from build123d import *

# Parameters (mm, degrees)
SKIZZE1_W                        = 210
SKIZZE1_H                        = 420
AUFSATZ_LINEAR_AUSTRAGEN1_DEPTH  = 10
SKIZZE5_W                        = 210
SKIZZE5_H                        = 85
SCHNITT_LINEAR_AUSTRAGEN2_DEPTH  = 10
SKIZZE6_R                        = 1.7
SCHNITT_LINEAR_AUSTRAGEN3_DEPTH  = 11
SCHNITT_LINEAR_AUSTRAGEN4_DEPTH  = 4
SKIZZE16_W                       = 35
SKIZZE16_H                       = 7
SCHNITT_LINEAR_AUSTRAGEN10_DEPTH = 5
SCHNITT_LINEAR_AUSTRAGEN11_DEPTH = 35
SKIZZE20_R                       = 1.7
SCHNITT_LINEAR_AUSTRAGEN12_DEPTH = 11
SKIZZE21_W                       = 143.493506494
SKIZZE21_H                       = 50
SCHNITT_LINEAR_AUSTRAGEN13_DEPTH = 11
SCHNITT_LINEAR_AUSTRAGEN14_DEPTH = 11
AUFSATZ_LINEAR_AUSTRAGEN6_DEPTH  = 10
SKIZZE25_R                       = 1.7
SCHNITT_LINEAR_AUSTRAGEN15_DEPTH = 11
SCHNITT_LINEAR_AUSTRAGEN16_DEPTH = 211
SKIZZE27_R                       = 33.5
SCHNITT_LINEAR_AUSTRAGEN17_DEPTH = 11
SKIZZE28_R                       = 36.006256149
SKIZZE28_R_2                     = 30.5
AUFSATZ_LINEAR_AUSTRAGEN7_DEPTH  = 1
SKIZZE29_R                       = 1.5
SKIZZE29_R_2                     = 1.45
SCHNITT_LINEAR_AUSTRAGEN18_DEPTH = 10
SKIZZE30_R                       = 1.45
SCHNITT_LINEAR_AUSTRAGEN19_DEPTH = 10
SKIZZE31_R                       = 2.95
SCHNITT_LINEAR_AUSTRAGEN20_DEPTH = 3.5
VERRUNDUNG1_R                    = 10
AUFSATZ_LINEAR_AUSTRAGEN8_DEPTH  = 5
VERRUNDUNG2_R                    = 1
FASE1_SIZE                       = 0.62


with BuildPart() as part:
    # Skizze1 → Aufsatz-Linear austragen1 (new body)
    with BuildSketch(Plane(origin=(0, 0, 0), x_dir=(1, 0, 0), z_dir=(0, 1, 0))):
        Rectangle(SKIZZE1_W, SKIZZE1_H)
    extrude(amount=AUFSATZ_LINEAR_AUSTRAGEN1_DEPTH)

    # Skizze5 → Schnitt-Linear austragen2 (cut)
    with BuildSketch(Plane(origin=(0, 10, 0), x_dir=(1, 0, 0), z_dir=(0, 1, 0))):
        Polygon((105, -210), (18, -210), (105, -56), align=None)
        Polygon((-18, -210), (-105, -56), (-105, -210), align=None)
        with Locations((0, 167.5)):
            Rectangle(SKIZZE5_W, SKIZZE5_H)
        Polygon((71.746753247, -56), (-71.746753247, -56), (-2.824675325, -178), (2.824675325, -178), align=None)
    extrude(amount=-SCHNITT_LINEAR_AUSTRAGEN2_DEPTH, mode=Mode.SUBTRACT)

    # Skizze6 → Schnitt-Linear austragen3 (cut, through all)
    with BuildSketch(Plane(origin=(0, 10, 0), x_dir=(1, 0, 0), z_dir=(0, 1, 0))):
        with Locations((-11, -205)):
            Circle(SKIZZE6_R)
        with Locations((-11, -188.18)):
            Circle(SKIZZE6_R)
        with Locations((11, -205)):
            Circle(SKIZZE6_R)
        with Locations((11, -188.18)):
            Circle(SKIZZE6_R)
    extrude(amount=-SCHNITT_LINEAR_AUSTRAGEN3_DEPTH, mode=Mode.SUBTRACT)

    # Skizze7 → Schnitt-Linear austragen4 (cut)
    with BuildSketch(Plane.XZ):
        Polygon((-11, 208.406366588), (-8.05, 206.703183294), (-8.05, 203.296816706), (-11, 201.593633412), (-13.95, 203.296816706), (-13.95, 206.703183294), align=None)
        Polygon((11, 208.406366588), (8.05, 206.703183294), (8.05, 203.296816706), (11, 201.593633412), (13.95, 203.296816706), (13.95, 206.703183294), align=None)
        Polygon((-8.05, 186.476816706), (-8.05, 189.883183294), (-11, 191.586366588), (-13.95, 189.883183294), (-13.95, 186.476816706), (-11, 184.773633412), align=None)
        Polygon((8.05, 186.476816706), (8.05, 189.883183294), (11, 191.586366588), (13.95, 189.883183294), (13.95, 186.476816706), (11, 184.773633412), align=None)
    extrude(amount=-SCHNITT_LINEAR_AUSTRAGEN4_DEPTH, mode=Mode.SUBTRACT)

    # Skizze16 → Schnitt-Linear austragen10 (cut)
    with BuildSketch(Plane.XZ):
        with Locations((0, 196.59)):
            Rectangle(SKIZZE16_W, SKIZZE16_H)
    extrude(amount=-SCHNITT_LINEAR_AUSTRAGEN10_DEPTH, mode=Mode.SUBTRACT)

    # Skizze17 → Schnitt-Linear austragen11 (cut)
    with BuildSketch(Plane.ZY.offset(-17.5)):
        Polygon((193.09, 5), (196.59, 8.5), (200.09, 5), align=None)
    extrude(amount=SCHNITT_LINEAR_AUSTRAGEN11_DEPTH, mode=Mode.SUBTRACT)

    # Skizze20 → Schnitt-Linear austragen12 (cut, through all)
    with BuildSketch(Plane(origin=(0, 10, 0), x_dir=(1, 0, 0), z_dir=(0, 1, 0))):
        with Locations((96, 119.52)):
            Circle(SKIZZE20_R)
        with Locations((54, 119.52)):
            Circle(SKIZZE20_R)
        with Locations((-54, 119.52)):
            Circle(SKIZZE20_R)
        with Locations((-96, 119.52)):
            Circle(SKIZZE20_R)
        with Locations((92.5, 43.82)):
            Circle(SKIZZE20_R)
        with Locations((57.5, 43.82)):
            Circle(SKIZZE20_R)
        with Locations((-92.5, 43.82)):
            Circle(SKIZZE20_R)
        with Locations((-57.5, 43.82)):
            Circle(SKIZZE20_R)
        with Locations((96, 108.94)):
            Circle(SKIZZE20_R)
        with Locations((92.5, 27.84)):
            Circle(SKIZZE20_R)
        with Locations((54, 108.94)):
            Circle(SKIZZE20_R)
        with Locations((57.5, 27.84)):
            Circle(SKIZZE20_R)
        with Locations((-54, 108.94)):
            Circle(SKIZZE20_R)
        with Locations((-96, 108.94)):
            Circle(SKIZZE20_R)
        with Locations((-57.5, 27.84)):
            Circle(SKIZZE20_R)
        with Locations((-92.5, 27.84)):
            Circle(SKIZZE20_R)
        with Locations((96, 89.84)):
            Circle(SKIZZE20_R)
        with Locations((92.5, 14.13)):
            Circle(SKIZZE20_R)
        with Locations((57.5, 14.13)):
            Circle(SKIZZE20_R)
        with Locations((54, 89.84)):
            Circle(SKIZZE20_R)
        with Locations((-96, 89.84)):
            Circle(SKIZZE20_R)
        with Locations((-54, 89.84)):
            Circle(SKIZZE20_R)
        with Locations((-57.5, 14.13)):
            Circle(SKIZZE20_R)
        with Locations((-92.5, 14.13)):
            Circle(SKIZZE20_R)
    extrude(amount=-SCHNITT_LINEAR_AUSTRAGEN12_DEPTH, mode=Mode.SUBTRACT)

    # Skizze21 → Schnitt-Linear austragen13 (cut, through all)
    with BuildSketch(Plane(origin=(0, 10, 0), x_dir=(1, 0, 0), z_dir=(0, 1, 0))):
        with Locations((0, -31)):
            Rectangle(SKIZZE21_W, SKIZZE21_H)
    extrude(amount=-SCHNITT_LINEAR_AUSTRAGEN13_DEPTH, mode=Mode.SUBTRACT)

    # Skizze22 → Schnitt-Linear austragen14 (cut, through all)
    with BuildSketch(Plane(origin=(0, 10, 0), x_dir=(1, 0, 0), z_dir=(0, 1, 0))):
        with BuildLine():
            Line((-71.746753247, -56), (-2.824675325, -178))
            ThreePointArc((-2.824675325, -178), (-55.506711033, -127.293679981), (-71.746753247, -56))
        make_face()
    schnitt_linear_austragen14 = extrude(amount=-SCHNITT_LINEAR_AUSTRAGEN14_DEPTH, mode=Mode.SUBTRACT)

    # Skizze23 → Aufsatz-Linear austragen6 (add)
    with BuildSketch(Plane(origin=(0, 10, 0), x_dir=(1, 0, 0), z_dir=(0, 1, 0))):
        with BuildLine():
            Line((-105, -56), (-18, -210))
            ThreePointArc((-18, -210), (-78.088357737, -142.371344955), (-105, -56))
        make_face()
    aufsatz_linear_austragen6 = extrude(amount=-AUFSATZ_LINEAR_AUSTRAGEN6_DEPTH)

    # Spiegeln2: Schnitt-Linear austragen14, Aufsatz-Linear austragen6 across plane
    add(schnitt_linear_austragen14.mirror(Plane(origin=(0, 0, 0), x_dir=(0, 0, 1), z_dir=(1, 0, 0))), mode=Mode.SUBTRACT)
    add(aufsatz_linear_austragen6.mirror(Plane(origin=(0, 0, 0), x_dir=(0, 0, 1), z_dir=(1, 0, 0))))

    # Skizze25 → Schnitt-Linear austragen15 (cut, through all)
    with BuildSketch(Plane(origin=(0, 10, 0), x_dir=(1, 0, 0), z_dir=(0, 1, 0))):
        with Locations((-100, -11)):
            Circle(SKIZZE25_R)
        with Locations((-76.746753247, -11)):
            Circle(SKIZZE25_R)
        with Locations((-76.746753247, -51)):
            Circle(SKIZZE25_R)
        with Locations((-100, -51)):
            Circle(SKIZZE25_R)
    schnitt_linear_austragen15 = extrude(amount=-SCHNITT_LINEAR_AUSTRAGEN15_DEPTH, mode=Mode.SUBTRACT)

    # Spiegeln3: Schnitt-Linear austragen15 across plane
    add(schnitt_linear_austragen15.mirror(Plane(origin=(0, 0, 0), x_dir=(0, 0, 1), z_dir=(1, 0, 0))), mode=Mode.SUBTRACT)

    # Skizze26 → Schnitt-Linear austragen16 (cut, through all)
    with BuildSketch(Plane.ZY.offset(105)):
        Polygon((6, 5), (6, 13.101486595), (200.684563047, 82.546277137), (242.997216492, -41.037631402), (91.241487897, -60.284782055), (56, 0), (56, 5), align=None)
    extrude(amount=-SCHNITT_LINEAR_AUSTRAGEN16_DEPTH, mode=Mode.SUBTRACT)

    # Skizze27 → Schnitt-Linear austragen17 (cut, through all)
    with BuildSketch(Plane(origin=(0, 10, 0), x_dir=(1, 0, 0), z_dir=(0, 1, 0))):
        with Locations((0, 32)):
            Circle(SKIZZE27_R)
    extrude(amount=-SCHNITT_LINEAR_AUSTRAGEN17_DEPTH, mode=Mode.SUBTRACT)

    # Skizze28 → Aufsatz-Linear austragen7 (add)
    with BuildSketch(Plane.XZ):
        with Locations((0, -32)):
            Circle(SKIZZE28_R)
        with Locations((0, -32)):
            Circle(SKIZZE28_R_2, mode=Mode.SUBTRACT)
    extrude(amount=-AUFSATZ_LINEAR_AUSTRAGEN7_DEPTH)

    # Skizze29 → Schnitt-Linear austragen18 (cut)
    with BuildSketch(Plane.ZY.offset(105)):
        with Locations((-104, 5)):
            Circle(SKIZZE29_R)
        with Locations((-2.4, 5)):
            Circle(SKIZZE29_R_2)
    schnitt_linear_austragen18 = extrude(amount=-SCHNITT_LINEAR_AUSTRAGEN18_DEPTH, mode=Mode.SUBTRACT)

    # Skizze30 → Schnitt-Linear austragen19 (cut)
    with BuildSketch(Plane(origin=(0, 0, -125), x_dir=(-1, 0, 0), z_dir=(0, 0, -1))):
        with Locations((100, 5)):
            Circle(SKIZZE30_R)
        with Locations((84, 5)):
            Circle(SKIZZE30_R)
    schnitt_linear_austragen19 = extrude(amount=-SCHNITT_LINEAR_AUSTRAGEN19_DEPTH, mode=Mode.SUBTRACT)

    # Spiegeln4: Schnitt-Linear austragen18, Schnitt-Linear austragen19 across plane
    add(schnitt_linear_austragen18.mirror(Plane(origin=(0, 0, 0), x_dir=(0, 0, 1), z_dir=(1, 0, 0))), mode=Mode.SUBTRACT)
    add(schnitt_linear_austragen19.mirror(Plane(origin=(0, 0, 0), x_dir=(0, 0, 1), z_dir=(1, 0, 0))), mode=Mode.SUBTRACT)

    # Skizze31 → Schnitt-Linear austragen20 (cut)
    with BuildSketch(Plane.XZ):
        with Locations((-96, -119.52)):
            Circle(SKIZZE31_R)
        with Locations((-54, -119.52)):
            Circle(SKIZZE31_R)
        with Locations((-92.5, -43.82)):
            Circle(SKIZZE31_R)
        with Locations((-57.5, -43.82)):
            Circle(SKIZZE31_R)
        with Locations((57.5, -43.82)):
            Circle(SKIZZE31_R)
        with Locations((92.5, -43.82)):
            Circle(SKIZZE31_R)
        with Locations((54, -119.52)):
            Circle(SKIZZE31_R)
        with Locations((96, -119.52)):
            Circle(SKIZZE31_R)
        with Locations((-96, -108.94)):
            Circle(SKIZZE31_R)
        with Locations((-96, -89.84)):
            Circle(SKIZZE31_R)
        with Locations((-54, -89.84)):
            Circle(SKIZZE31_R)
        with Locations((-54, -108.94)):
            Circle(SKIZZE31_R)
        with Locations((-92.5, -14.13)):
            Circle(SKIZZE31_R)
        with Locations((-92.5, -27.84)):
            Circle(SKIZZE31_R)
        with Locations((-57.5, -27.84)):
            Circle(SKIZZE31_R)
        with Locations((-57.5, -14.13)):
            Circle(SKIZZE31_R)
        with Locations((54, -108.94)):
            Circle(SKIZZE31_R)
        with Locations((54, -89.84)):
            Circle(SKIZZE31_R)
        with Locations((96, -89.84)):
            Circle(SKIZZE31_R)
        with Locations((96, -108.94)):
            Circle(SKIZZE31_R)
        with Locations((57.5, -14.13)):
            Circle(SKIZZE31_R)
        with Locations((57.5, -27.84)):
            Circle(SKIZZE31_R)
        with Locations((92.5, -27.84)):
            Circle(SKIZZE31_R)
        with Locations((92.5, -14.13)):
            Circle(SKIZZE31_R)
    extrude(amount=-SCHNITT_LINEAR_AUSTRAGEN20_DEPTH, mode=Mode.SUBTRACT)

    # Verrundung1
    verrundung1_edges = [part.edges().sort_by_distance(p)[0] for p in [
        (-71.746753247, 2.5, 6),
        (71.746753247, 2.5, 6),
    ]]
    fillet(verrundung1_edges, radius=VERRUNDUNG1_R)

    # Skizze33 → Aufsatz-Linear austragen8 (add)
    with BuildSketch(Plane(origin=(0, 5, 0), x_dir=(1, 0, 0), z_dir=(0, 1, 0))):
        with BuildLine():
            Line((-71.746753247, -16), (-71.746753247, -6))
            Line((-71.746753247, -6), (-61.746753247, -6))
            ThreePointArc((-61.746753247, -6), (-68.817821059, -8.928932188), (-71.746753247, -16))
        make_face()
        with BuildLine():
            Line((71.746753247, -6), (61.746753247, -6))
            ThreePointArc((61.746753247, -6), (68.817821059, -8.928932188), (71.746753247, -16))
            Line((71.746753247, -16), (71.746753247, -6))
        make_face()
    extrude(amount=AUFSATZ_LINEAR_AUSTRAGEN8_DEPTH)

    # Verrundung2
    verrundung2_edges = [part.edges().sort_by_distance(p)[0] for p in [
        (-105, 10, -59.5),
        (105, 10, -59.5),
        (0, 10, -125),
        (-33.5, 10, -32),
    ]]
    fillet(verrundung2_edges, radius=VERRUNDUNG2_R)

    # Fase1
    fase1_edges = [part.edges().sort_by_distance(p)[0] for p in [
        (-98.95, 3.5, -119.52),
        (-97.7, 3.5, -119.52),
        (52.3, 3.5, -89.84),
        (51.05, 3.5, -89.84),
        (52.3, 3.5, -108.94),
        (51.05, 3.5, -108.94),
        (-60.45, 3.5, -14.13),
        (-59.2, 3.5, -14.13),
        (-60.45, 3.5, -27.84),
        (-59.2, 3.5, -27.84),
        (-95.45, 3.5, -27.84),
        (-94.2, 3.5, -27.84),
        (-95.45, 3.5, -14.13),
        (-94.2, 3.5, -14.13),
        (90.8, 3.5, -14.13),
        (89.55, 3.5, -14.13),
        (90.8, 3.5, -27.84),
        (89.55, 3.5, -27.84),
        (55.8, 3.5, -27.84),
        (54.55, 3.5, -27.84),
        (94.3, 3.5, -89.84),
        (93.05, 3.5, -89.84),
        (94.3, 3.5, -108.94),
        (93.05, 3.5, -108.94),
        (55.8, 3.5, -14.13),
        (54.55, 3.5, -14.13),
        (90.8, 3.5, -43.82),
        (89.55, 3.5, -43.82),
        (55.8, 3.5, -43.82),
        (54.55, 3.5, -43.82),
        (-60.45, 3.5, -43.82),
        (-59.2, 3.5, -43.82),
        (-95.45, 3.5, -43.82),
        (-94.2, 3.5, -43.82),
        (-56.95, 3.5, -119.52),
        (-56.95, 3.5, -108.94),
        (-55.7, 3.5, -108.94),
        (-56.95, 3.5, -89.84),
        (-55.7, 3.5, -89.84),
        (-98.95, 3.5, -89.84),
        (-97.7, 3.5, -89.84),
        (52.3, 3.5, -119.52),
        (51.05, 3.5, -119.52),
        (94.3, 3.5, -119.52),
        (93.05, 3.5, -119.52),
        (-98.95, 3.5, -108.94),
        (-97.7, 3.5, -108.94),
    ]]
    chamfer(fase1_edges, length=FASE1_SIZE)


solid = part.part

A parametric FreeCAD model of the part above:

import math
import FreeCAD as App
import Part
import Sketcher
from FreeCAD import Vector
Q = App.Units.Quantity


def edges_at(feature, points):
    """Names of the edges that pass closest to the given points."""
    edges = feature.Shape.Edges
    near = lambda p: min(range(len(edges)), key=lambda i: edges[i].distToShape(Part.Vertex(*p))[0])
    return sorted({f"Edge{near(p) + 1}" for p in points})

doc = App.newDocument("Part")
body = doc.addObject("PartDesign::Body", "Body")

# Sketch on XZ plane
sketch1 = body.newObject("Sketcher::SketchObject", "Sketch")
sketch1.AttachmentSupport = (doc.getObject("XZ_Plane"), [""])
sketch1.MapMode = "FlatFace"
sketch1.addGeometry([
    Part.LineSegment(Vector(-105, -210, 0), Vector(-105, 210, 0)),
    Part.LineSegment(Vector(-105, 210, 0), Vector(105, 210, 0)),
    Part.LineSegment(Vector(105, 210, 0), Vector(105, -210, 0)),
    Part.LineSegment(Vector(105, -210, 0), Vector(-105, -210, 0)),
], False)
sketch1.addConstraint([
    Sketcher.Constraint("Coincident", 0, 2, 1, 1),
    Sketcher.Constraint("Coincident", 1, 2, 2, 1),
    Sketcher.Constraint("Coincident", 2, 2, 3, 1),
    Sketcher.Constraint("Coincident", 3, 2, 0, 1),
    Sketcher.Constraint("Vertical", 0),
    Sketcher.Constraint("Horizontal", 1),
    Sketcher.Constraint("Vertical", 2),
    Sketcher.Constraint("Horizontal", 3),
    Sketcher.Constraint("Symmetric", 0, 2, 2, 2, -1, 1),
    Sketcher.Constraint("DistanceX", 1, 1, 1, 2, Q("210 mm")),
    Sketcher.Constraint("DistanceY", 0, 1, 0, 2, Q("420 mm")),
])
pad1 = body.newObject("PartDesign::Pad", "Pad")
pad1.Profile = sketch1
pad1.Length = 10
pad1.Reversed = True

# Sketch on XZ plane
sketch2 = body.newObject("Sketcher::SketchObject", "Sketch001")
sketch2.AttachmentSupport = (doc.getObject("XZ_Plane"), [""])
sketch2.MapMode = "FlatFace"
sketch2.AttachmentOffset = App.Placement(Vector(0, 0, -10), App.Rotation())
sketch2.addGeometry([
    Part.LineSegment(Vector(18, 210, 0), Vector(105, 210, 0)),  # 0
    Part.LineSegment(Vector(105, 210, 0), Vector(105, 56, 0)),  # 1
    Part.LineSegment(Vector(105, 56, 0), Vector(18, 210, 0)),  # 2
    Part.LineSegment(Vector(-18, 210, 0), Vector(-105, 56, 0)),  # 3
    Part.LineSegment(Vector(-105, 56, 0), Vector(-105, 210, 0)),  # 4
    Part.LineSegment(Vector(-105, 210, 0), Vector(-18, 210, 0)),  # 5
    Part.LineSegment(Vector(-105, -210, 0), Vector(-105, -125, 0)),  # 6
    Part.LineSegment(Vector(-105, -125, 0), Vector(105, -125, 0)),  # 7
    Part.LineSegment(Vector(105, -125, 0), Vector(105, -210, 0)),  # 8
    Part.LineSegment(Vector(105, -210, 0), Vector(-105, -210, 0)),  # 9
    Part.LineSegment(Vector(71.746753, 56, 0), Vector(-71.746753, 56, 0)),  # 10
    Part.LineSegment(Vector(-71.746753, 56, 0), Vector(-2.824675, 178, 0)),  # 11
    Part.LineSegment(Vector(-2.824675, 178, 0), Vector(2.824675, 178, 0)),  # 12
    Part.LineSegment(Vector(2.824675, 178, 0), Vector(71.746753, 56, 0)),  # 13
], False)
sketch2.addConstraint([
    Sketcher.Constraint("Coincident", 0, 2, 1, 1),
    Sketcher.Constraint("Coincident", 1, 2, 2, 1),
    Sketcher.Constraint("Coincident", 2, 2, 0, 1),
    Sketcher.Constraint("Coincident", 3, 2, 4, 1),
    Sketcher.Constraint("Coincident", 4, 2, 5, 1),
    Sketcher.Constraint("Coincident", 5, 2, 3, 1),
    Sketcher.Constraint("Coincident", 6, 2, 7, 1),
    Sketcher.Constraint("Coincident", 7, 2, 8, 1),
    Sketcher.Constraint("Coincident", 8, 2, 9, 1),
    Sketcher.Constraint("Coincident", 9, 2, 6, 1),
    Sketcher.Constraint("Coincident", 10, 2, 11, 1),
    Sketcher.Constraint("Coincident", 11, 2, 12, 1),
    Sketcher.Constraint("Coincident", 12, 2, 13, 1),
    Sketcher.Constraint("Coincident", 13, 2, 10, 1),
    Sketcher.Constraint("Horizontal", 0),
    Sketcher.Constraint("Vertical", 1),
    Sketcher.Constraint("Vertical", 4),
    Sketcher.Constraint("Horizontal", 5),
    Sketcher.Constraint("Vertical", 6),
    Sketcher.Constraint("Horizontal", 7),
    Sketcher.Constraint("Vertical", 8),
    Sketcher.Constraint("Horizontal", 9),
    Sketcher.Constraint("Horizontal", 10),
    Sketcher.Constraint("Horizontal", 12),
    Sketcher.Constraint("Symmetric", 4, 2, 8, 2, -1, 1),
    Sketcher.Constraint("Symmetric", 0, 2, 9, 2, -1, 1),
    Sketcher.Constraint("Symmetric", 1, 2, 3, 2, -2),
    Sketcher.Constraint("Parallel", 3, 11),
    Sketcher.Constraint("Parallel", 2, 13),
    Sketcher.Constraint("Horizontal", 3, 2, 10, 2),
    Sketcher.Constraint("Equal", 0, 5),
    Sketcher.Constraint("DistanceX", 0, 1, 0, 2, Q("87 mm")),
    Sketcher.Constraint("DistanceX", 7, 1, 7, 2, Q("210 mm")),
    Sketcher.Constraint("DistanceY", 1, 2, 1, 1, Q("154 mm")),
    Sketcher.Constraint("DistanceY", 6, 1, 6, 2, Q("85 mm")),
    Sketcher.Constraint("DistanceY", -1, 1, 0, 2, Q("210 mm")),
    Sketcher.Constraint("DistanceY", -1, 1, 11, 2, Q("178 mm")),
    Sketcher.Constraint("DistanceX", 12, 1, 12, 2, Q("5.649351 mm")),
    Sketcher.Constraint("DistanceX", 10, 2, -1, 1, Q("71.746753 mm")),
])
pocket1 = body.newObject("PartDesign::Pocket", "Pocket")
pocket1.Profile = sketch2
pocket1.Length = 10
pocket1.Reversed = True

# Sketch on XZ plane
sketch3 = body.newObject("Sketcher::SketchObject", "Sketch002")
sketch3.AttachmentSupport = (doc.getObject("XZ_Plane"), [""])
sketch3.MapMode = "FlatFace"
sketch3.AttachmentOffset = App.Placement(Vector(0, 0, -10), App.Rotation())
sketch3.addGeometry([
    Part.Circle(Vector(-11, 205, 0), Vector(0, 0, 1), 1.7),
    Part.Circle(Vector(-11, 188.18, 0), Vector(0, 0, 1), 1.7),
    Part.Circle(Vector(11, 205, 0), Vector(0, 0, 1), 1.7),
    Part.Circle(Vector(11, 188.18, 0), Vector(0, 0, 1), 1.7),
], False)
sketch3.addConstraint([
    Sketcher.Constraint("Equal", 0, 1),
    Sketcher.Constraint("Equal", 1, 2),
    Sketcher.Constraint("Equal", 2, 3),
    Sketcher.Constraint("Symmetric", 0, 3, 2, 3, -2),
    Sketcher.Constraint("Symmetric", 1, 3, 3, 3, -2),
    Sketcher.Constraint("Vertical", 0, 3, 1, 3),
    Sketcher.Constraint("Diameter", 0, Q("3.4 mm")),
    Sketcher.Constraint("DistanceX", 0, 3, -1, 1, Q("11 mm")),
    Sketcher.Constraint("DistanceY", -1, 1, 0, 3, Q("205 mm")),
    Sketcher.Constraint("DistanceY", -1, 1, 1, 3, Q("188.18 mm")),
])
pocket2 = body.newObject("PartDesign::Pocket", "Pocket001")
pocket2.Profile = sketch3
pocket2.Type = "ThroughAll"
pocket2.Reversed = True

# Sketch on XZ plane
sketch4 = body.newObject("Sketcher::SketchObject", "Sketch003")
sketch4.AttachmentSupport = (doc.getObject("XZ_Plane"), [""])
sketch4.MapMode = "FlatFace"
sketch4.addGeometry([
    Part.LineSegment(Vector(-8.05, 206.703183, 0), Vector(-11, 208.406367, 0)),  # 0
    Part.LineSegment(Vector(-11, 208.406367, 0), Vector(-13.95, 206.703183, 0)),  # 1
    Part.LineSegment(Vector(-13.95, 206.703183, 0), Vector(-13.95, 203.296817, 0)),  # 2
    Part.LineSegment(Vector(-13.95, 203.296817, 0), Vector(-11, 201.593633, 0)),  # 3
    Part.LineSegment(Vector(-11, 201.593633, 0), Vector(-8.05, 203.296817, 0)),  # 4
    Part.LineSegment(Vector(-8.05, 203.296817, 0), Vector(-8.05, 206.703183, 0)),  # 5
    Part.LineSegment(Vector(11, 208.406367, 0), Vector(8.05, 206.703183, 0)),  # 6
    Part.LineSegment(Vector(8.05, 206.703183, 0), Vector(8.05, 203.296817, 0)),  # 7
    Part.LineSegment(Vector(8.05, 203.296817, 0), Vector(11, 201.593633, 0)),  # 8
    Part.LineSegment(Vector(11, 201.593633, 0), Vector(13.95, 203.296817, 0)),  # 9
    Part.LineSegment(Vector(13.95, 203.296817, 0), Vector(13.95, 206.703183, 0)),  # 10
    Part.LineSegment(Vector(13.95, 206.703183, 0), Vector(11, 208.406367, 0)),  # 11
    Part.LineSegment(Vector(-8.05, 186.476817, 0), Vector(-8.05, 189.883183, 0)),  # 12
    Part.LineSegment(Vector(-8.05, 189.883183, 0), Vector(-11, 191.586367, 0)),  # 13
    Part.LineSegment(Vector(-11, 191.586367, 0), Vector(-13.95, 189.883183, 0)),  # 14
    Part.LineSegment(Vector(-13.95, 189.883183, 0), Vector(-13.95, 186.476817, 0)),  # 15
    Part.LineSegment(Vector(-13.95, 186.476817, 0), Vector(-11, 184.773633, 0)),  # 16
    Part.LineSegment(Vector(-11, 184.773633, 0), Vector(-8.05, 186.476817, 0)),  # 17
    Part.LineSegment(Vector(8.05, 189.883183, 0), Vector(8.05, 186.476817, 0)),  # 18
    Part.LineSegment(Vector(8.05, 186.476817, 0), Vector(11, 184.773633, 0)),  # 19
    Part.LineSegment(Vector(11, 184.773633, 0), Vector(13.95, 186.476817, 0)),  # 20
    Part.LineSegment(Vector(13.95, 186.476817, 0), Vector(13.95, 189.883183, 0)),  # 21
    Part.LineSegment(Vector(13.95, 189.883183, 0), Vector(11, 191.586367, 0)),  # 22
    Part.LineSegment(Vector(11, 191.586367, 0), Vector(8.05, 189.883183, 0)),  # 23
], False)
sketch4.addConstraint([
    Sketcher.Constraint("Coincident", 0, 2, 1, 1),
    Sketcher.Constraint("Coincident", 1, 2, 2, 1),
    Sketcher.Constraint("Coincident", 2, 2, 3, 1),
    Sketcher.Constraint("Coincident", 3, 2, 4, 1),
    Sketcher.Constraint("Coincident", 4, 2, 5, 1),
    Sketcher.Constraint("Coincident", 5, 2, 0, 1),
    Sketcher.Constraint("Coincident", 6, 2, 7, 1),
    Sketcher.Constraint("Coincident", 7, 2, 8, 1),
    Sketcher.Constraint("Coincident", 8, 2, 9, 1),
    Sketcher.Constraint("Coincident", 9, 2, 10, 1),
    Sketcher.Constraint("Coincident", 10, 2, 11, 1),
    Sketcher.Constraint("Coincident", 11, 2, 6, 1),
    Sketcher.Constraint("Coincident", 12, 2, 13, 1),
    Sketcher.Constraint("Coincident", 13, 2, 14, 1),
    Sketcher.Constraint("Coincident", 14, 2, 15, 1),
    Sketcher.Constraint("Coincident", 15, 2, 16, 1),
    Sketcher.Constraint("Coincident", 16, 2, 17, 1),
    Sketcher.Constraint("Coincident", 17, 2, 12, 1),
    Sketcher.Constraint("Coincident", 18, 2, 19, 1),
    Sketcher.Constraint("Coincident", 19, 2, 20, 1),
    Sketcher.Constraint("Coincident", 20, 2, 21, 1),
    Sketcher.Constraint("Coincident", 21, 2, 22, 1),
    Sketcher.Constraint("Coincident", 22, 2, 23, 1),
    Sketcher.Constraint("Coincident", 23, 2, 18, 1),
    Sketcher.Constraint("Vertical", 2),
    Sketcher.Constraint("Vertical", 5),
    Sketcher.Constraint("Vertical", 7),
    Sketcher.Constraint("Vertical", 10),
    Sketcher.Constraint("Vertical", 12),
    Sketcher.Constraint("Vertical", 15),
    Sketcher.Constraint("Vertical", 18),
    Sketcher.Constraint("Vertical", 21),
    Sketcher.Constraint("Symmetric", 5, 2, 6, 2, -2),
    Sketcher.Constraint("Symmetric", 3, 2, 8, 2, -2),
    Sketcher.Constraint("Symmetric", 2, 2, 9, 2, -2),
    Sketcher.Constraint("Symmetric", 0, 2, 11, 2, -2),
    Sketcher.Constraint("Symmetric", 17, 2, 18, 2, -2),
    Sketcher.Constraint("Symmetric", 16, 2, 19, 2, -2),
    Sketcher.Constraint("Symmetric", 15, 2, 20, 2, -2),
    Sketcher.Constraint("Symmetric", 13, 2, 22, 2, -2),
    Sketcher.Constraint("Parallel", 0, 3),
    Sketcher.Constraint("Parallel", 1, 4),
    Sketcher.Constraint("Parallel", 4, 6),
    Sketcher.Constraint("Parallel", 3, 8),
    Sketcher.Constraint("Parallel", 8, 11),
    Sketcher.Constraint("Parallel", 11, 13),
    Sketcher.Constraint("Parallel", 9, 14),
    Sketcher.Constraint("Parallel", 13, 16),
    Sketcher.Constraint("Parallel", 14, 17),
    Sketcher.Constraint("Parallel", 19, 22),
    Sketcher.Constraint("Parallel", 20, 23),
    Sketcher.Constraint("Horizontal", 2, 2, 4, 2),
    Sketcher.Constraint("Horizontal", 1, 2, 5, 2),
    Sketcher.Constraint("Horizontal", 12, 2, 14, 2),
    Sketcher.Constraint("Horizontal", 15, 2, 17, 2),
    Sketcher.Constraint("Vertical", 5, 2, 12, 2),
    Sketcher.Constraint("Vertical", 3, 2, 13, 2),
    Sketcher.Constraint("Equal", 10, 12),
    Sketcher.Constraint("Angle", 0, Q("150 deg")),
    Sketcher.Constraint("DistanceX", 0, 2, -1, 1, Q("11 mm")),
    Sketcher.Constraint("DistanceX", 2, 2, 4, 2, Q("5.9 mm")),
    Sketcher.Constraint("DistanceY", 12, 2, 5, 2, Q("16.82 mm")),
    Sketcher.Constraint("DistanceY", 2, 2, 2, 1, Q("3.406367 mm")),
    Sketcher.Constraint("DistanceY", -1, 1, 0, 2, Q("208.406367 mm")),
])
pocket3 = body.newObject("PartDesign::Pocket", "Pocket002")
pocket3.Profile = sketch4
pocket3.Length = 4

# Sketch on XZ plane
sketch5 = body.newObject("Sketcher::SketchObject", "Sketch004")
sketch5.AttachmentSupport = (doc.getObject("XZ_Plane"), [""])
sketch5.MapMode = "FlatFace"
sketch5.addGeometry([
    Part.LineSegment(Vector(-17.5, 200.09, 0), Vector(-17.5, 193.09, 0)),
    Part.LineSegment(Vector(-17.5, 193.09, 0), Vector(17.5, 193.09, 0)),
    Part.LineSegment(Vector(17.5, 193.09, 0), Vector(17.5, 200.09, 0)),
    Part.LineSegment(Vector(17.5, 200.09, 0), Vector(-17.5, 200.09, 0)),
], False)
sketch5.addConstraint([
    Sketcher.Constraint("Coincident", 0, 2, 1, 1),
    Sketcher.Constraint("Coincident", 1, 2, 2, 1),
    Sketcher.Constraint("Coincident", 2, 2, 3, 1),
    Sketcher.Constraint("Coincident", 3, 2, 0, 1),
    Sketcher.Constraint("Vertical", 0),
    Sketcher.Constraint("Horizontal", 1),
    Sketcher.Constraint("Vertical", 2),
    Sketcher.Constraint("Horizontal", 3),
    Sketcher.Constraint("DistanceX", 1, 1, 1, 2, Q("35 mm")),
    Sketcher.Constraint("DistanceY", 0, 2, 0, 1, Q("7 mm")),
    Sketcher.Constraint("DistanceX", 0, 2, -1, 1, Q("17.5 mm")),
    Sketcher.Constraint("DistanceY", -1, 1, 0, 2, Q("193.09 mm")),
])
pocket4 = body.newObject("PartDesign::Pocket", "Pocket003")
pocket4.Profile = sketch5
pocket4.Length = 5

# Sketch on YZ plane
sketch6 = body.newObject("Sketcher::SketchObject", "Sketch005")
sketch6.AttachmentSupport = (doc.getObject("YZ_Plane"), [""])
sketch6.MapMode = "FlatFace"
sketch6.AttachmentOffset = App.Placement(Vector(0, 0, 17.5), App.Rotation())
sketch6.addGeometry([
    Part.LineSegment(Vector(8.5, 196.59, 0), Vector(5, 193.09, 0)),
    Part.LineSegment(Vector(5, 193.09, 0), Vector(5, 200.09, 0)),
    Part.LineSegment(Vector(5, 200.09, 0), Vector(8.5, 196.59, 0)),
], False)
sketch6.addConstraint([
    Sketcher.Constraint("Coincident", 0, 2, 1, 1),
    Sketcher.Constraint("Coincident", 1, 2, 2, 1),
    Sketcher.Constraint("Coincident", 2, 2, 0, 1),
    Sketcher.Constraint("Vertical", 1),
    Sketcher.Constraint("Perpendicular", 0, 2),
    Sketcher.Constraint("Equal", 0, 2),
    Sketcher.Constraint("DistanceY", 1, 1, 1, 2, Q("7 mm")),
    Sketcher.Constraint("DistanceX", -1, 1, 0, 2, Q("5 mm")),
    Sketcher.Constraint("DistanceY", -1, 1, 0, 2, Q("193.09 mm")),
])
pocket5 = body.newObject("PartDesign::Pocket", "Pocket004")
pocket5.Profile = sketch6
pocket5.Length = 35

# Sketch on XZ plane
sketch7 = body.newObject("Sketcher::SketchObject", "Sketch006")
sketch7.AttachmentSupport = (doc.getObject("XZ_Plane"), [""])
sketch7.MapMode = "FlatFace"
sketch7.AttachmentOffset = App.Placement(Vector(0, 0, -10), App.Rotation())
sketch7.addGeometry([
    Part.Circle(Vector(96, -119.52, 0), Vector(0, 0, 1), 1.7),  # 0
    Part.Circle(Vector(54, -119.52, 0), Vector(0, 0, 1), 1.7),  # 1
    Part.Circle(Vector(-54, -119.52, 0), Vector(0, 0, 1), 1.7),  # 2
    Part.Circle(Vector(-96, -119.52, 0), Vector(0, 0, 1), 1.7),  # 3
    Part.Circle(Vector(92.5, -43.82, 0), Vector(0, 0, 1), 1.7),  # 4
    Part.Circle(Vector(57.5, -43.82, 0), Vector(0, 0, 1), 1.7),  # 5
    Part.Circle(Vector(-92.5, -43.82, 0), Vector(0, 0, 1), 1.7),  # 6
    Part.Circle(Vector(-57.5, -43.82, 0), Vector(0, 0, 1), 1.7),  # 7
    Part.Circle(Vector(96, -108.94, 0), Vector(0, 0, 1), 1.7),  # 8
    Part.Circle(Vector(92.5, -27.84, 0), Vector(0, 0, 1), 1.7),  # 9
    Part.Circle(Vector(54, -108.94, 0), Vector(0, 0, 1), 1.7),  # 10
    Part.Circle(Vector(57.5, -27.84, 0), Vector(0, 0, 1), 1.7),  # 11
    Part.Circle(Vector(-54, -108.94, 0), Vector(0, 0, 1), 1.7),  # 12
    Part.Circle(Vector(-96, -108.94, 0), Vector(0, 0, 1), 1.7),  # 13
    Part.Circle(Vector(-57.5, -27.84, 0), Vector(0, 0, 1), 1.7),  # 14
    Part.Circle(Vector(-92.5, -27.84, 0), Vector(0, 0, 1), 1.7),  # 15
    Part.Circle(Vector(96, -89.84, 0), Vector(0, 0, 1), 1.7),  # 16
    Part.Circle(Vector(92.5, -14.13, 0), Vector(0, 0, 1), 1.7),  # 17
    Part.Circle(Vector(57.5, -14.13, 0), Vector(0, 0, 1), 1.7),  # 18
    Part.Circle(Vector(54, -89.84, 0), Vector(0, 0, 1), 1.7),  # 19
    Part.Circle(Vector(-96, -89.84, 0), Vector(0, 0, 1), 1.7),  # 20
    Part.Circle(Vector(-54, -89.84, 0), Vector(0, 0, 1), 1.7),  # 21
    Part.Circle(Vector(-57.5, -14.13, 0), Vector(0, 0, 1), 1.7),  # 22
    Part.Circle(Vector(-92.5, -14.13, 0), Vector(0, 0, 1), 1.7),  # 23
], False)
sketch7.addConstraint([
    Sketcher.Constraint("Equal", 0, 1),
    Sketcher.Constraint("Equal", 1, 2),
    Sketcher.Constraint("Equal", 2, 3),
    Sketcher.Constraint("Equal", 3, 4),
    Sketcher.Constraint("Equal", 4, 5),
    Sketcher.Constraint("Equal", 5, 6),
    Sketcher.Constraint("Equal", 6, 7),
    Sketcher.Constraint("Equal", 7, 8),
    Sketcher.Constraint("Equal", 8, 9),
    Sketcher.Constraint("Equal", 9, 10),
    Sketcher.Constraint("Equal", 10, 11),
    Sketcher.Constraint("Equal", 11, 12),
    Sketcher.Constraint("Equal", 12, 13),
    Sketcher.Constraint("Equal", 13, 14),
    Sketcher.Constraint("Equal", 14, 15),
    Sketcher.Constraint("Equal", 15, 16),
    Sketcher.Constraint("Equal", 16, 17),
    Sketcher.Constraint("Equal", 17, 18),
    Sketcher.Constraint("Equal", 18, 19),
    Sketcher.Constraint("Equal", 19, 20),
    Sketcher.Constraint("Equal", 20, 21),
    Sketcher.Constraint("Equal", 21, 22),
    Sketcher.Constraint("Equal", 22, 23),
    Sketcher.Constraint("Symmetric", 1, 3, 2, 3, -2),
    Sketcher.Constraint("Symmetric", 0, 3, 3, 3, -2),
    Sketcher.Constraint("Symmetric", 4, 3, 6, 3, -2),
    Sketcher.Constraint("Symmetric", 5, 3, 7, 3, -2),
    Sketcher.Constraint("Symmetric", 10, 3, 12, 3, -2),
    Sketcher.Constraint("Symmetric", 8, 3, 13, 3, -2),
    Sketcher.Constraint("Symmetric", 11, 3, 14, 3, -2),
    Sketcher.Constraint("Symmetric", 9, 3, 15, 3, -2),
    Sketcher.Constraint("Symmetric", 16, 3, 20, 3, -2),
    Sketcher.Constraint("Symmetric", 19, 3, 21, 3, -2),
    Sketcher.Constraint("Symmetric", 18, 3, 22, 3, -2),
    Sketcher.Constraint("Symmetric", 17, 3, 23, 3, -2),
    Sketcher.Constraint("Horizontal", 0, 3, 1, 3),
    Sketcher.Constraint("Horizontal", 4, 3, 5, 3),
    Sketcher.Constraint("Horizontal", 8, 3, 10, 3),
    Sketcher.Constraint("Horizontal", 9, 3, 11, 3),
    Sketcher.Constraint("Horizontal", 17, 3, 18, 3),
    Sketcher.Constraint("Horizontal", 16, 3, 19, 3),
    Sketcher.Constraint("Vertical", 0, 3, 8, 3),
    Sketcher.Constraint("Vertical", 4, 3, 9, 3),
    Sketcher.Constraint("Vertical", 1, 3, 10, 3),
    Sketcher.Constraint("Vertical", 5, 3, 11, 3),
    Sketcher.Constraint("Vertical", 8, 3, 16, 3),
    Sketcher.Constraint("Vertical", 9, 3, 17, 3),
    Sketcher.Constraint("Vertical", 11, 3, 18, 3),
    Sketcher.Constraint("Vertical", 10, 3, 19, 3),
    Sketcher.Constraint("Diameter", 0, Q("3.4 mm")),
    Sketcher.Constraint("DistanceX", -1, 1, 0, 3, Q("96 mm")),
    Sketcher.Constraint("DistanceX", -1, 1, 1, 3, Q("54 mm")),
    Sketcher.Constraint("DistanceX", 5, 3, 4, 3, Q("35 mm")),
    Sketcher.Constraint("DistanceX", 6, 3, 5, 3, Q("150 mm")),
    Sketcher.Constraint("DistanceY", 0, 3, 4, 3, Q("75.7 mm")),
    Sketcher.Constraint("DistanceY", 8, 3, 9, 3, Q("81.1 mm")),
    Sketcher.Constraint("DistanceY", 8, 3, 16, 3, Q("19.1 mm")),
    Sketcher.Constraint("DistanceY", 0, 3, -1, 1, Q("119.52 mm")),
    Sketcher.Constraint("DistanceY", 8, 3, -1, 1, Q("108.94 mm")),
    Sketcher.Constraint("DistanceY", 17, 3, -1, 1, Q("14.13 mm")),
])
pocket6 = body.newObject("PartDesign::Pocket", "Pocket005")
pocket6.Profile = sketch7
pocket6.Type = "ThroughAll"
pocket6.Reversed = True

# Sketch on XZ plane
sketch8 = body.newObject("Sketcher::SketchObject", "Sketch007")
sketch8.AttachmentSupport = (doc.getObject("XZ_Plane"), [""])
sketch8.MapMode = "FlatFace"
sketch8.AttachmentOffset = App.Placement(Vector(0, 0, -10), App.Rotation())
sketch8.addGeometry([
    Part.LineSegment(Vector(-71.746753, 6, 0), Vector(-71.746753, 56, 0)),
    Part.LineSegment(Vector(-71.746753, 56, 0), Vector(71.746753, 56, 0)),
    Part.LineSegment(Vector(71.746753, 56, 0), Vector(71.746753, 6, 0)),
    Part.LineSegment(Vector(71.746753, 6, 0), Vector(-71.746753, 6, 0)),
], False)
sketch8.addConstraint([
    Sketcher.Constraint("Coincident", 0, 2, 1, 1),
    Sketcher.Constraint("Coincident", 1, 2, 2, 1),
    Sketcher.Constraint("Coincident", 2, 2, 3, 1),
    Sketcher.Constraint("Coincident", 3, 2, 0, 1),
    Sketcher.Constraint("Vertical", 0),
    Sketcher.Constraint("Horizontal", 1),
    Sketcher.Constraint("Vertical", 2),
    Sketcher.Constraint("Horizontal", 3),
    Sketcher.Constraint("DistanceY", 0, 1, 0, 2, Q("50 mm")),
    Sketcher.Constraint("DistanceY", -1, 1, 0, 2, Q("56 mm")),
    Sketcher.Constraint("DistanceX", 1, 1, 1, 2, Q("143.493506 mm")),
    Sketcher.Constraint("DistanceX", 0, 2, -1, 1, Q("71.746753 mm")),
])
pocket7 = body.newObject("PartDesign::Pocket", "Pocket006")
pocket7.Profile = sketch8
pocket7.Type = "ThroughAll"
pocket7.Reversed = True

# Sketch on XZ plane
sketch9 = body.newObject("Sketcher::SketchObject", "Sketch008")
sketch9.AttachmentSupport = (doc.getObject("XZ_Plane"), [""])
sketch9.MapMode = "FlatFace"
sketch9.AttachmentOffset = App.Placement(Vector(0, 0, -10), App.Rotation())
sketch9.addGeometry([
    Part.LineSegment(Vector(-2.824675, 178, 0), Vector(-71.746753, 56, 0)),
    Part.ArcOfCircle(Part.Circle(Vector(55.711264, 64.462746, 0), Vector(0, 0, 1), 127.738656), math.radians(117.274089), math.radians(183.798655)),
], False)
sketch9.addConstraint([
    Sketcher.Constraint("Coincident", 0, 1, 1, 1),
    Sketcher.Constraint("Coincident", 1, 2, 0, 2),
    Sketcher.Constraint("DistanceY", -1, 1, 0, 1, Q("178 mm")),
    Sketcher.Constraint("DistanceY", -1, 1, 1, 2, Q("56 mm")),
    Sketcher.Constraint("Radius", 1, Q("127.738656 mm")),
    Sketcher.Constraint("Distance", 0, Q("140.122278 mm")),
    Sketcher.Constraint("DistanceX", -1, 1, 1, 3, Q("55.711264 mm")),
])
pocket8 = body.newObject("PartDesign::Pocket", "Pocket007")
pocket8.Profile = sketch9
pocket8.Type = "ThroughAll"
pocket8.Reversed = True

# Sketch on XZ plane
sketch10 = body.newObject("Sketcher::SketchObject", "Sketch009")
sketch10.AttachmentSupport = (doc.getObject("XZ_Plane"), [""])
sketch10.MapMode = "FlatFace"
sketch10.AttachmentOffset = App.Placement(Vector(0, 0, -10), App.Rotation())
sketch10.addGeometry([
    Part.LineSegment(Vector(-18, 210, 0), Vector(-105, 56, 0)),
    Part.ArcOfCircle(Part.Circle(Vector(108.915495, 36.726311, 0), Vector(0, 0, 1), 214.782015), math.radians(126.221166), math.radians(174.851578)),
], False)
sketch10.addConstraint([
    Sketcher.Constraint("Coincident", 0, 1, 1, 1),
    Sketcher.Constraint("Coincident", 1, 2, 0, 2),
    Sketcher.Constraint("DistanceX", 0, 1, -1, 1, Q("18 mm")),
    Sketcher.Constraint("DistanceY", -1, 1, 0, 1, Q("210 mm")),
    Sketcher.Constraint("DistanceX", 1, 2, -1, 1, Q("105 mm")),
    Sketcher.Constraint("DistanceY", -1, 1, 1, 2, Q("56 mm")),
    Sketcher.Constraint("Radius", 1, Q("214.782015 mm")),
])
pad2 = body.newObject("PartDesign::Pad", "Pad001")
pad2.Profile = sketch10
pad2.Length = 10
doc.recompute()

mirrored = body.newObject("PartDesign::Mirrored", "Mirrored")
mirrored.Originals = [pocket8, pad2]
mirrored.MirrorPlane = (doc.getObject("YZ_Plane"), [""])
body.Tip = mirrored

# Sketch on XZ plane
sketch11 = body.newObject("Sketcher::SketchObject", "Sketch010")
sketch11.AttachmentSupport = (doc.getObject("XZ_Plane"), [""])
sketch11.MapMode = "FlatFace"
sketch11.AttachmentOffset = App.Placement(Vector(0, 0, -10), App.Rotation())
sketch11.addGeometry([
    Part.Circle(Vector(-100, 11, 0), Vector(0, 0, 1), 1.7),
    Part.Circle(Vector(-76.746753, 11, 0), Vector(0, 0, 1), 1.7),
    Part.Circle(Vector(-76.746753, 51, 0), Vector(0, 0, 1), 1.7),
    Part.Circle(Vector(-100, 51, 0), Vector(0, 0, 1), 1.7),
], False)
sketch11.addConstraint([
    Sketcher.Constraint("Equal", 0, 1),
    Sketcher.Constraint("Equal", 1, 2),
    Sketcher.Constraint("Equal", 2, 3),
    Sketcher.Constraint("Horizontal", 0, 3, 1, 3),
    Sketcher.Constraint("Horizontal", 2, 3, 3, 3),
    Sketcher.Constraint("Vertical", 1, 3, 2, 3),
    Sketcher.Constraint("Vertical", 0, 3, 3, 3),
    Sketcher.Constraint("Diameter", 0, Q("3.4 mm")),
    Sketcher.Constraint("DistanceX", 0, 3, -1, 1, Q("100 mm")),
    Sketcher.Constraint("DistanceY", -1, 1, 0, 3, Q("11 mm")),
    Sketcher.Constraint("DistanceY", -1, 1, 2, 3, Q("51 mm")),
    Sketcher.Constraint("DistanceX", 1, 3, -1, 1, Q("76.746753 mm")),
])
pocket9 = body.newObject("PartDesign::Pocket", "Pocket008")
pocket9.Profile = sketch11
pocket9.Type = "ThroughAll"
pocket9.Reversed = True
doc.recompute()

mirrored2 = body.newObject("PartDesign::Mirrored", "Mirrored001")
mirrored2.Originals = [pocket9]
mirrored2.MirrorPlane = (doc.getObject("YZ_Plane"), [""])
body.Tip = mirrored2

# Sketch on YZ plane
sketch12 = body.newObject("Sketcher::SketchObject", "Sketch011")
sketch12.AttachmentSupport = (doc.getObject("YZ_Plane"), [""])
sketch12.MapMode = "FlatFace"
sketch12.AttachmentOffset = App.Placement(Vector(0, 0, -105), App.Rotation())
sketch12.addGeometry([
    Part.LineSegment(Vector(13.101487, 6, 0), Vector(5, 6, 0)),  # 0
    Part.LineSegment(Vector(5, 6, 0), Vector(5, 56, 0)),  # 1
    Part.LineSegment(Vector(5, 56, 0), Vector(0, 56, 0)),  # 2
    Part.LineSegment(Vector(0, 56, 0), Vector(-60.284782, 91.241488, 0)),  # 3
    Part.LineSegment(Vector(-60.284782, 91.241488, 0), Vector(-41.037631, 242.997216, 0)),  # 4
    Part.LineSegment(Vector(-41.037631, 242.997216, 0), Vector(82.546277, 200.684563, 0)),  # 5
    Part.LineSegment(Vector(82.546277, 200.684563, 0), Vector(13.101487, 6, 0)),  # 6
], False)
sketch12.addConstraint([
    Sketcher.Constraint("Coincident", 0, 2, 1, 1),
    Sketcher.Constraint("Coincident", 1, 2, 2, 1),
    Sketcher.Constraint("Coincident", 2, 2, 3, 1),
    Sketcher.Constraint("Coincident", 3, 2, 4, 1),
    Sketcher.Constraint("Coincident", 4, 2, 5, 1),
    Sketcher.Constraint("Coincident", 5, 2, 6, 1),
    Sketcher.Constraint("Coincident", 6, 2, 0, 1),
    Sketcher.Constraint("Horizontal", 0),
    Sketcher.Constraint("Vertical", 1),
    Sketcher.Constraint("Horizontal", 2),
    Sketcher.Constraint("PointOnObject", 2, 2, -2),
    Sketcher.Constraint("DistanceX", 2, 2, 2, 1, Q("5 mm")),
    Sketcher.Constraint("DistanceY", 1, 1, 1, 2, Q("50 mm")),
    Sketcher.Constraint("DistanceY", -1, 1, 0, 2, Q("6 mm")),
    Sketcher.Constraint("Distance", 5, Q("130.626732 mm")),
    Sketcher.Constraint("Distance", 6, Q("206.699439 mm")),
    Sketcher.Constraint("DistanceX", 0, 2, 0, 1, Q("8.101487 mm")),
    Sketcher.Constraint("DistanceX", 4, 2, -1, 1, Q("41.037631 mm")),
    Sketcher.Constraint("DistanceX", 3, 2, 4, 2, Q("19.247151 mm")),
    Sketcher.Constraint("DistanceY", 3, 2, 4, 2, Q("151.755729 mm")),
    Sketcher.Constraint("DistanceX", 4, 2, 5, 2, Q("123.583909 mm")),
])
pocket10 = body.newObject("PartDesign::Pocket", "Pocket009")
pocket10.Profile = sketch12
pocket10.Type = "ThroughAll"
pocket10.Reversed = True

# Sketch on XZ plane
sketch13 = body.newObject("Sketcher::SketchObject", "Sketch012")
sketch13.AttachmentSupport = (doc.getObject("XZ_Plane"), [""])
sketch13.MapMode = "FlatFace"
sketch13.AttachmentOffset = App.Placement(Vector(0, 0, -10), App.Rotation())
sketch13.addGeometry(Part.Circle(Vector(0, -32, 0), Vector(0, 0, 1), 33.5), False)
sketch13.addConstraint([
    Sketcher.Constraint("PointOnObject", 0, 3, -2),
    Sketcher.Constraint("Diameter", 0, Q("67 mm")),
    Sketcher.Constraint("DistanceY", 0, 3, -1, 1, Q("32 mm")),
])
pocket11 = body.newObject("PartDesign::Pocket", "Pocket010")
pocket11.Profile = sketch13
pocket11.Type = "ThroughAll"
pocket11.Reversed = True

# Sketch on XZ plane
sketch14 = body.newObject("Sketcher::SketchObject", "Sketch013")
sketch14.AttachmentSupport = (doc.getObject("XZ_Plane"), [""])
sketch14.MapMode = "FlatFace"
sketch14.addGeometry([
    Part.Circle(Vector(0, -32, 0), Vector(0, 0, 1), 36.006256),
    Part.Circle(Vector(0, -32, 0), Vector(0, 0, 1), 30.5),
], False)
sketch14.addConstraint([
    Sketcher.Constraint("Coincident", 1, 3, 0, 3),
    Sketcher.Constraint("PointOnObject", 0, 3, -2),
    Sketcher.Constraint("Diameter", 1, Q("61 mm")),
    Sketcher.Constraint("DistanceY", 0, 3, -1, 1, Q("32 mm")),
    Sketcher.Constraint("Diameter", 0, Q("72.012512 mm")),
])
pad3 = body.newObject("PartDesign::Pad", "Pad002")
pad3.Profile = sketch14
pad3.Length = 1
pad3.Reversed = True

# Sketch on YZ plane
sketch15 = body.newObject("Sketcher::SketchObject", "Sketch014")
sketch15.AttachmentSupport = (doc.getObject("YZ_Plane"), [""])
sketch15.MapMode = "FlatFace"
sketch15.AttachmentOffset = App.Placement(Vector(0, 0, -105), App.Rotation())
sketch15.addGeometry([
    Part.Circle(Vector(5, -104, 0), Vector(0, 0, 1), 1.5),
    Part.Circle(Vector(5, -2.4, 0), Vector(0, 0, 1), 1.45),
], False)
sketch15.addConstraint([
    Sketcher.Constraint("Vertical", 0, 3, 1, 3),
    Sketcher.Constraint("Diameter", 0, Q("3 mm")),
    Sketcher.Constraint("Diameter", 1, Q("2.9 mm")),
    Sketcher.Constraint("DistanceX", -1, 1, 0, 3, Q("5 mm")),
    Sketcher.Constraint("DistanceY", 0, 3, -1, 1, Q("104 mm")),
    Sketcher.Constraint("DistanceY", 1, 3, -1, 1, Q("2.4 mm")),
])
pocket12 = body.newObject("PartDesign::Pocket", "Pocket011")
pocket12.Profile = sketch15
pocket12.Length = 10
pocket12.Reversed = True

# Sketch on XY plane
sketch16 = body.newObject("Sketcher::SketchObject", "Sketch015")
sketch16.AttachmentSupport = (doc.getObject("XY_Plane"), [""])
sketch16.MapMode = "FlatFace"
sketch16.AttachmentOffset = App.Placement(Vector(0, 0, -125), App.Rotation())
sketch16.addGeometry([
    Part.Circle(Vector(-100, 5, 0), Vector(0, 0, 1), 1.45),
    Part.Circle(Vector(-84, 5, 0), Vector(0, 0, 1), 1.45),
], False)
sketch16.addConstraint([
    Sketcher.Constraint("Equal", 0, 1),
    Sketcher.Constraint("Horizontal", 0, 3, 1, 3),
    Sketcher.Constraint("Diameter", 0, Q("2.9 mm")),
    Sketcher.Constraint("DistanceX", 0, 3, -1, 1, Q("100 mm")),
    Sketcher.Constraint("DistanceY", -1, 1, 0, 3, Q("5 mm")),
    Sketcher.Constraint("DistanceX", 1, 3, -1, 1, Q("84 mm")),
])
pocket13 = body.newObject("PartDesign::Pocket", "Pocket012")
pocket13.Profile = sketch16
pocket13.Length = 10
pocket13.Reversed = True
doc.recompute()

mirrored3 = body.newObject("PartDesign::Mirrored", "Mirrored002")
mirrored3.Originals = [pocket12, pocket13]
mirrored3.MirrorPlane = (doc.getObject("YZ_Plane"), [""])
body.Tip = mirrored3

# Sketch on XZ plane
sketch17 = body.newObject("Sketcher::SketchObject", "Sketch016")
sketch17.AttachmentSupport = (doc.getObject("XZ_Plane"), [""])
sketch17.MapMode = "FlatFace"
sketch17.addGeometry([
    Part.Circle(Vector(-96, -119.52, 0), Vector(0, 0, 1), 2.95),  # 0
    Part.Circle(Vector(-54, -119.52, 0), Vector(0, 0, 1), 2.95),  # 1
    Part.Circle(Vector(-92.5, -43.82, 0), Vector(0, 0, 1), 2.95),  # 2
    Part.Circle(Vector(-57.5, -43.82, 0), Vector(0, 0, 1), 2.95),  # 3
    Part.Circle(Vector(57.5, -43.82, 0), Vector(0, 0, 1), 2.95),  # 4
    Part.Circle(Vector(92.5, -43.82, 0), Vector(0, 0, 1), 2.95),  # 5
    Part.Circle(Vector(54, -119.52, 0), Vector(0, 0, 1), 2.95),  # 6
    Part.Circle(Vector(96, -119.52, 0), Vector(0, 0, 1), 2.95),  # 7
    Part.Circle(Vector(-96, -108.94, 0), Vector(0, 0, 1), 2.95),  # 8
    Part.Circle(Vector(-96, -89.84, 0), Vector(0, 0, 1), 2.95),  # 9
    Part.Circle(Vector(-54, -89.84, 0), Vector(0, 0, 1), 2.95),  # 10
    Part.Circle(Vector(-54, -108.94, 0), Vector(0, 0, 1), 2.95),  # 11
    Part.Circle(Vector(-92.5, -14.13, 0), Vector(0, 0, 1), 2.95),  # 12
    Part.Circle(Vector(-92.5, -27.84, 0), Vector(0, 0, 1), 2.95),  # 13
    Part.Circle(Vector(-57.5, -27.84, 0), Vector(0, 0, 1), 2.95),  # 14
    Part.Circle(Vector(-57.5, -14.13, 0), Vector(0, 0, 1), 2.95),  # 15
    Part.Circle(Vector(54, -108.94, 0), Vector(0, 0, 1), 2.95),  # 16
    Part.Circle(Vector(54, -89.84, 0), Vector(0, 0, 1), 2.95),  # 17
    Part.Circle(Vector(96, -89.84, 0), Vector(0, 0, 1), 2.95),  # 18
    Part.Circle(Vector(96, -108.94, 0), Vector(0, 0, 1), 2.95),  # 19
    Part.Circle(Vector(57.5, -14.13, 0), Vector(0, 0, 1), 2.95),  # 20
    Part.Circle(Vector(57.5, -27.84, 0), Vector(0, 0, 1), 2.95),  # 21
    Part.Circle(Vector(92.5, -27.84, 0), Vector(0, 0, 1), 2.95),  # 22
    Part.Circle(Vector(92.5, -14.13, 0), Vector(0, 0, 1), 2.95),  # 23
], False)
sketch17.addConstraint([
    Sketcher.Constraint("Equal", 0, 1),
    Sketcher.Constraint("Equal", 1, 2),
    Sketcher.Constraint("Equal", 2, 3),
    Sketcher.Constraint("Equal", 3, 4),
    Sketcher.Constraint("Equal", 4, 5),
    Sketcher.Constraint("Equal", 5, 6),
    Sketcher.Constraint("Equal", 6, 7),
    Sketcher.Constraint("Equal", 7, 8),
    Sketcher.Constraint("Equal", 8, 9),
    Sketcher.Constraint("Equal", 9, 10),
    Sketcher.Constraint("Equal", 10, 11),
    Sketcher.Constraint("Equal", 11, 12),
    Sketcher.Constraint("Equal", 12, 13),
    Sketcher.Constraint("Equal", 13, 14),
    Sketcher.Constraint("Equal", 14, 15),
    Sketcher.Constraint("Equal", 15, 16),
    Sketcher.Constraint("Equal", 16, 17),
    Sketcher.Constraint("Equal", 17, 18),
    Sketcher.Constraint("Equal", 18, 19),
    Sketcher.Constraint("Equal", 19, 20),
    Sketcher.Constraint("Equal", 20, 21),
    Sketcher.Constraint("Equal", 21, 22),
    Sketcher.Constraint("Equal", 22, 23),
    Sketcher.Constraint("Symmetric", 3, 3, 4, 3, -2),
    Sketcher.Constraint("Symmetric", 2, 3, 5, 3, -2),
    Sketcher.Constraint("Symmetric", 1, 3, 6, 3, -2),
    Sketcher.Constraint("Symmetric", 0, 3, 7, 3, -2),
    Sketcher.Constraint("Symmetric", 11, 3, 16, 3, -2),
    Sketcher.Constraint("Symmetric", 10, 3, 17, 3, -2),
    Sketcher.Constraint("Symmetric", 9, 3, 18, 3, -2),
    Sketcher.Constraint("Symmetric", 8, 3, 19, 3, -2),
    Sketcher.Constraint("Symmetric", 15, 3, 20, 3, -2),
    Sketcher.Constraint("Symmetric", 14, 3, 21, 3, -2),
    Sketcher.Constraint("Symmetric", 13, 3, 22, 3, -2),
    Sketcher.Constraint("Symmetric", 12, 3, 23, 3, -2),
    Sketcher.Constraint("Horizontal", 0, 3, 1, 3),
    Sketcher.Constraint("Horizontal", 2, 3, 3, 3),
    Sketcher.Constraint("Horizontal", 9, 3, 10, 3),
    Sketcher.Constraint("Horizontal", 8, 3, 11, 3),
    Sketcher.Constraint("Horizontal", 13, 3, 14, 3),
    Sketcher.Constraint("Horizontal", 12, 3, 15, 3),
    Sketcher.Constraint("Vertical", 0, 3, 8, 3),
    Sketcher.Constraint("Vertical", 8, 3, 9, 3),
    Sketcher.Constraint("Vertical", 1, 3, 10, 3),
    Sketcher.Constraint("Vertical", 10, 3, 11, 3),
    Sketcher.Constraint("Vertical", 2, 3, 12, 3),
    Sketcher.Constraint("Vertical", 12, 3, 13, 3),
    Sketcher.Constraint("Vertical", 3, 3, 14, 3),
    Sketcher.Constraint("Vertical", 14, 3, 15, 3),
    Sketcher.Constraint("Diameter", 0, Q("5.9 mm")),
    Sketcher.Constraint("DistanceX", 0, 3, -1, 1, Q("96 mm")),
    Sketcher.Constraint("DistanceX", 1, 3, -1, 1, Q("54 mm")),
    Sketcher.Constraint("DistanceX", 2, 3, 3, 3, Q("35 mm")),
    Sketcher.Constraint("DistanceX", 3, 3, 4, 3, Q("115 mm")),
    Sketcher.Constraint("DistanceY", 9, 3, 13, 3, Q("62 mm")),
    Sketcher.Constraint("DistanceY", 0, 3, 2, 3, Q("75.7 mm")),
    Sketcher.Constraint("DistanceY", 8, 3, 9, 3, Q("19.1 mm")),
    Sketcher.Constraint("DistanceY", 0, 3, -1, 1, Q("119.52 mm")),
    Sketcher.Constraint("DistanceY", 8, 3, -1, 1, Q("108.94 mm")),
    Sketcher.Constraint("DistanceY", 12, 3, -1, 1, Q("14.13 mm")),
])
pocket14 = body.newObject("PartDesign::Pocket", "Pocket013")
pocket14.Profile = sketch17
pocket14.Length = 3.5
doc.recompute()

fillet = body.newObject("PartDesign::Fillet", "Fillet")
fillet.Base = (pocket14, edges_at(pocket14, [(-71.747, 2.5, 6), (71.747, 2.5, 6)]))
fillet.Radius = 10

# Sketch on XZ plane
sketch18 = body.newObject("Sketcher::SketchObject", "Sketch017")
sketch18.AttachmentSupport = (doc.getObject("XZ_Plane"), [""])
sketch18.MapMode = "FlatFace"
sketch18.AttachmentOffset = App.Placement(Vector(0, 0, -5), App.Rotation())
sketch18.addGeometry([
    Part.LineSegment(Vector(-71.746753, 6, 0), Vector(-71.746753, 16, 0)),  # 0
    Part.ArcOfCircle(Part.Circle(Vector(-61.746753, 16, 0), Vector(0, 0, 1), 10), math.radians(180), math.radians(270)),  # 1
    Part.LineSegment(Vector(-61.746753, 6, 0), Vector(-71.746753, 6, 0)),  # 2
    Part.LineSegment(Vector(71.746753, 6, 0), Vector(61.746753, 6, 0)),  # 3
    Part.ArcOfCircle(Part.Circle(Vector(61.746753, 16, 0), Vector(0, 0, 1), 10), math.radians(-90), math.radians(0)),  # 4
    Part.LineSegment(Vector(71.746753, 16, 0), Vector(71.746753, 6, 0)),  # 5
], False)
sketch18.addConstraint([
    Sketcher.Constraint("Tangent", 0, 2, 1, 1),
    Sketcher.Constraint("Tangent", 1, 2, 2, 1),
    Sketcher.Constraint("Coincident", 2, 2, 0, 1),
    Sketcher.Constraint("Tangent", 3, 2, 4, 1),
    Sketcher.Constraint("Tangent", 4, 2, 5, 1),
    Sketcher.Constraint("Coincident", 5, 2, 3, 1),
    Sketcher.Constraint("Vertical", 0),
    Sketcher.Constraint("Horizontal", 2),
    Sketcher.Constraint("Horizontal", 3),
    Sketcher.Constraint("Vertical", 5),
    Sketcher.Constraint("Equal", 1, 4),
    Sketcher.Constraint("Symmetric", 1, 3, 4, 3, -2),
    Sketcher.Constraint("Radius", 1, Q("10 mm")),
    Sketcher.Constraint("DistanceY", -1, 1, 1, 3, Q("16 mm")),
    Sketcher.Constraint("DistanceX", 1, 3, -1, 1, Q("61.746753 mm")),
])
pad4 = body.newObject("PartDesign::Pad", "Pad003")
pad4.Profile = sketch18
pad4.Length = 5
pad4.Reversed = True
doc.recompute()

fillet2 = body.newObject("PartDesign::Fillet", "Fillet001")
fillet2.Base = (pad4, edges_at(pad4, [
    (-105, 10, -59.5),
    (105, 10, -59.5),
    (0, 10, -125),
    (-33.5, 10, -32),
]))
fillet2.Radius = 1
doc.recompute()

chamfer = body.newObject("PartDesign::Chamfer", "Chamfer")
chamfer.Base = (fillet2, edges_at(fillet2, [
    (-98.95, 3.5, -119.52),
    (-97.7, 3.5, -119.52),
    (52.3, 3.5, -89.84),
    (51.05, 3.5, -89.84),
    (52.3, 3.5, -108.94),
    (51.05, 3.5, -108.94),
    (-60.45, 3.5, -14.13),
    (-59.2, 3.5, -14.13),
    (-60.45, 3.5, -27.84),
    (-59.2, 3.5, -27.84),
    (-95.45, 3.5, -27.84),
    (-94.2, 3.5, -27.84),
    (-95.45, 3.5, -14.13),
    (-94.2, 3.5, -14.13),
    (90.8, 3.5, -14.13),
    (89.55, 3.5, -14.13),
    (90.8, 3.5, -27.84),
    (89.55, 3.5, -27.84),
    (55.8, 3.5, -27.84),
    (54.55, 3.5, -27.84),
    (94.3, 3.5, -89.84),
    (93.05, 3.5, -89.84),
    (94.3, 3.5, -108.94),
    (93.05, 3.5, -108.94),
    (55.8, 3.5, -14.13),
    (54.55, 3.5, -14.13),
    (90.8, 3.5, -43.82),
    (89.55, 3.5, -43.82),
    (55.8, 3.5, -43.82),
    (54.55, 3.5, -43.82),
    (-60.45, 3.5, -43.82),
    (-59.2, 3.5, -43.82),
    (-95.45, 3.5, -43.82),
    (-94.2, 3.5, -43.82),
    (-56.95, 3.5, -119.52),
    (-56.95, 3.5, -108.94),
    (-55.7, 3.5, -108.94),
    (-56.95, 3.5, -89.84),
    (-55.7, 3.5, -89.84),
    (-98.95, 3.5, -89.84),
    (-97.7, 3.5, -89.84),
    (52.3, 3.5, -119.52),
    (51.05, 3.5, -119.52),
    (94.3, 3.5, -119.52),
    (93.05, 3.5, -119.52),
    (-98.95, 3.5, -108.94),
    (-97.7, 3.5, -108.94),
]))
chamfer.Size = 0.62

doc.recompute()
